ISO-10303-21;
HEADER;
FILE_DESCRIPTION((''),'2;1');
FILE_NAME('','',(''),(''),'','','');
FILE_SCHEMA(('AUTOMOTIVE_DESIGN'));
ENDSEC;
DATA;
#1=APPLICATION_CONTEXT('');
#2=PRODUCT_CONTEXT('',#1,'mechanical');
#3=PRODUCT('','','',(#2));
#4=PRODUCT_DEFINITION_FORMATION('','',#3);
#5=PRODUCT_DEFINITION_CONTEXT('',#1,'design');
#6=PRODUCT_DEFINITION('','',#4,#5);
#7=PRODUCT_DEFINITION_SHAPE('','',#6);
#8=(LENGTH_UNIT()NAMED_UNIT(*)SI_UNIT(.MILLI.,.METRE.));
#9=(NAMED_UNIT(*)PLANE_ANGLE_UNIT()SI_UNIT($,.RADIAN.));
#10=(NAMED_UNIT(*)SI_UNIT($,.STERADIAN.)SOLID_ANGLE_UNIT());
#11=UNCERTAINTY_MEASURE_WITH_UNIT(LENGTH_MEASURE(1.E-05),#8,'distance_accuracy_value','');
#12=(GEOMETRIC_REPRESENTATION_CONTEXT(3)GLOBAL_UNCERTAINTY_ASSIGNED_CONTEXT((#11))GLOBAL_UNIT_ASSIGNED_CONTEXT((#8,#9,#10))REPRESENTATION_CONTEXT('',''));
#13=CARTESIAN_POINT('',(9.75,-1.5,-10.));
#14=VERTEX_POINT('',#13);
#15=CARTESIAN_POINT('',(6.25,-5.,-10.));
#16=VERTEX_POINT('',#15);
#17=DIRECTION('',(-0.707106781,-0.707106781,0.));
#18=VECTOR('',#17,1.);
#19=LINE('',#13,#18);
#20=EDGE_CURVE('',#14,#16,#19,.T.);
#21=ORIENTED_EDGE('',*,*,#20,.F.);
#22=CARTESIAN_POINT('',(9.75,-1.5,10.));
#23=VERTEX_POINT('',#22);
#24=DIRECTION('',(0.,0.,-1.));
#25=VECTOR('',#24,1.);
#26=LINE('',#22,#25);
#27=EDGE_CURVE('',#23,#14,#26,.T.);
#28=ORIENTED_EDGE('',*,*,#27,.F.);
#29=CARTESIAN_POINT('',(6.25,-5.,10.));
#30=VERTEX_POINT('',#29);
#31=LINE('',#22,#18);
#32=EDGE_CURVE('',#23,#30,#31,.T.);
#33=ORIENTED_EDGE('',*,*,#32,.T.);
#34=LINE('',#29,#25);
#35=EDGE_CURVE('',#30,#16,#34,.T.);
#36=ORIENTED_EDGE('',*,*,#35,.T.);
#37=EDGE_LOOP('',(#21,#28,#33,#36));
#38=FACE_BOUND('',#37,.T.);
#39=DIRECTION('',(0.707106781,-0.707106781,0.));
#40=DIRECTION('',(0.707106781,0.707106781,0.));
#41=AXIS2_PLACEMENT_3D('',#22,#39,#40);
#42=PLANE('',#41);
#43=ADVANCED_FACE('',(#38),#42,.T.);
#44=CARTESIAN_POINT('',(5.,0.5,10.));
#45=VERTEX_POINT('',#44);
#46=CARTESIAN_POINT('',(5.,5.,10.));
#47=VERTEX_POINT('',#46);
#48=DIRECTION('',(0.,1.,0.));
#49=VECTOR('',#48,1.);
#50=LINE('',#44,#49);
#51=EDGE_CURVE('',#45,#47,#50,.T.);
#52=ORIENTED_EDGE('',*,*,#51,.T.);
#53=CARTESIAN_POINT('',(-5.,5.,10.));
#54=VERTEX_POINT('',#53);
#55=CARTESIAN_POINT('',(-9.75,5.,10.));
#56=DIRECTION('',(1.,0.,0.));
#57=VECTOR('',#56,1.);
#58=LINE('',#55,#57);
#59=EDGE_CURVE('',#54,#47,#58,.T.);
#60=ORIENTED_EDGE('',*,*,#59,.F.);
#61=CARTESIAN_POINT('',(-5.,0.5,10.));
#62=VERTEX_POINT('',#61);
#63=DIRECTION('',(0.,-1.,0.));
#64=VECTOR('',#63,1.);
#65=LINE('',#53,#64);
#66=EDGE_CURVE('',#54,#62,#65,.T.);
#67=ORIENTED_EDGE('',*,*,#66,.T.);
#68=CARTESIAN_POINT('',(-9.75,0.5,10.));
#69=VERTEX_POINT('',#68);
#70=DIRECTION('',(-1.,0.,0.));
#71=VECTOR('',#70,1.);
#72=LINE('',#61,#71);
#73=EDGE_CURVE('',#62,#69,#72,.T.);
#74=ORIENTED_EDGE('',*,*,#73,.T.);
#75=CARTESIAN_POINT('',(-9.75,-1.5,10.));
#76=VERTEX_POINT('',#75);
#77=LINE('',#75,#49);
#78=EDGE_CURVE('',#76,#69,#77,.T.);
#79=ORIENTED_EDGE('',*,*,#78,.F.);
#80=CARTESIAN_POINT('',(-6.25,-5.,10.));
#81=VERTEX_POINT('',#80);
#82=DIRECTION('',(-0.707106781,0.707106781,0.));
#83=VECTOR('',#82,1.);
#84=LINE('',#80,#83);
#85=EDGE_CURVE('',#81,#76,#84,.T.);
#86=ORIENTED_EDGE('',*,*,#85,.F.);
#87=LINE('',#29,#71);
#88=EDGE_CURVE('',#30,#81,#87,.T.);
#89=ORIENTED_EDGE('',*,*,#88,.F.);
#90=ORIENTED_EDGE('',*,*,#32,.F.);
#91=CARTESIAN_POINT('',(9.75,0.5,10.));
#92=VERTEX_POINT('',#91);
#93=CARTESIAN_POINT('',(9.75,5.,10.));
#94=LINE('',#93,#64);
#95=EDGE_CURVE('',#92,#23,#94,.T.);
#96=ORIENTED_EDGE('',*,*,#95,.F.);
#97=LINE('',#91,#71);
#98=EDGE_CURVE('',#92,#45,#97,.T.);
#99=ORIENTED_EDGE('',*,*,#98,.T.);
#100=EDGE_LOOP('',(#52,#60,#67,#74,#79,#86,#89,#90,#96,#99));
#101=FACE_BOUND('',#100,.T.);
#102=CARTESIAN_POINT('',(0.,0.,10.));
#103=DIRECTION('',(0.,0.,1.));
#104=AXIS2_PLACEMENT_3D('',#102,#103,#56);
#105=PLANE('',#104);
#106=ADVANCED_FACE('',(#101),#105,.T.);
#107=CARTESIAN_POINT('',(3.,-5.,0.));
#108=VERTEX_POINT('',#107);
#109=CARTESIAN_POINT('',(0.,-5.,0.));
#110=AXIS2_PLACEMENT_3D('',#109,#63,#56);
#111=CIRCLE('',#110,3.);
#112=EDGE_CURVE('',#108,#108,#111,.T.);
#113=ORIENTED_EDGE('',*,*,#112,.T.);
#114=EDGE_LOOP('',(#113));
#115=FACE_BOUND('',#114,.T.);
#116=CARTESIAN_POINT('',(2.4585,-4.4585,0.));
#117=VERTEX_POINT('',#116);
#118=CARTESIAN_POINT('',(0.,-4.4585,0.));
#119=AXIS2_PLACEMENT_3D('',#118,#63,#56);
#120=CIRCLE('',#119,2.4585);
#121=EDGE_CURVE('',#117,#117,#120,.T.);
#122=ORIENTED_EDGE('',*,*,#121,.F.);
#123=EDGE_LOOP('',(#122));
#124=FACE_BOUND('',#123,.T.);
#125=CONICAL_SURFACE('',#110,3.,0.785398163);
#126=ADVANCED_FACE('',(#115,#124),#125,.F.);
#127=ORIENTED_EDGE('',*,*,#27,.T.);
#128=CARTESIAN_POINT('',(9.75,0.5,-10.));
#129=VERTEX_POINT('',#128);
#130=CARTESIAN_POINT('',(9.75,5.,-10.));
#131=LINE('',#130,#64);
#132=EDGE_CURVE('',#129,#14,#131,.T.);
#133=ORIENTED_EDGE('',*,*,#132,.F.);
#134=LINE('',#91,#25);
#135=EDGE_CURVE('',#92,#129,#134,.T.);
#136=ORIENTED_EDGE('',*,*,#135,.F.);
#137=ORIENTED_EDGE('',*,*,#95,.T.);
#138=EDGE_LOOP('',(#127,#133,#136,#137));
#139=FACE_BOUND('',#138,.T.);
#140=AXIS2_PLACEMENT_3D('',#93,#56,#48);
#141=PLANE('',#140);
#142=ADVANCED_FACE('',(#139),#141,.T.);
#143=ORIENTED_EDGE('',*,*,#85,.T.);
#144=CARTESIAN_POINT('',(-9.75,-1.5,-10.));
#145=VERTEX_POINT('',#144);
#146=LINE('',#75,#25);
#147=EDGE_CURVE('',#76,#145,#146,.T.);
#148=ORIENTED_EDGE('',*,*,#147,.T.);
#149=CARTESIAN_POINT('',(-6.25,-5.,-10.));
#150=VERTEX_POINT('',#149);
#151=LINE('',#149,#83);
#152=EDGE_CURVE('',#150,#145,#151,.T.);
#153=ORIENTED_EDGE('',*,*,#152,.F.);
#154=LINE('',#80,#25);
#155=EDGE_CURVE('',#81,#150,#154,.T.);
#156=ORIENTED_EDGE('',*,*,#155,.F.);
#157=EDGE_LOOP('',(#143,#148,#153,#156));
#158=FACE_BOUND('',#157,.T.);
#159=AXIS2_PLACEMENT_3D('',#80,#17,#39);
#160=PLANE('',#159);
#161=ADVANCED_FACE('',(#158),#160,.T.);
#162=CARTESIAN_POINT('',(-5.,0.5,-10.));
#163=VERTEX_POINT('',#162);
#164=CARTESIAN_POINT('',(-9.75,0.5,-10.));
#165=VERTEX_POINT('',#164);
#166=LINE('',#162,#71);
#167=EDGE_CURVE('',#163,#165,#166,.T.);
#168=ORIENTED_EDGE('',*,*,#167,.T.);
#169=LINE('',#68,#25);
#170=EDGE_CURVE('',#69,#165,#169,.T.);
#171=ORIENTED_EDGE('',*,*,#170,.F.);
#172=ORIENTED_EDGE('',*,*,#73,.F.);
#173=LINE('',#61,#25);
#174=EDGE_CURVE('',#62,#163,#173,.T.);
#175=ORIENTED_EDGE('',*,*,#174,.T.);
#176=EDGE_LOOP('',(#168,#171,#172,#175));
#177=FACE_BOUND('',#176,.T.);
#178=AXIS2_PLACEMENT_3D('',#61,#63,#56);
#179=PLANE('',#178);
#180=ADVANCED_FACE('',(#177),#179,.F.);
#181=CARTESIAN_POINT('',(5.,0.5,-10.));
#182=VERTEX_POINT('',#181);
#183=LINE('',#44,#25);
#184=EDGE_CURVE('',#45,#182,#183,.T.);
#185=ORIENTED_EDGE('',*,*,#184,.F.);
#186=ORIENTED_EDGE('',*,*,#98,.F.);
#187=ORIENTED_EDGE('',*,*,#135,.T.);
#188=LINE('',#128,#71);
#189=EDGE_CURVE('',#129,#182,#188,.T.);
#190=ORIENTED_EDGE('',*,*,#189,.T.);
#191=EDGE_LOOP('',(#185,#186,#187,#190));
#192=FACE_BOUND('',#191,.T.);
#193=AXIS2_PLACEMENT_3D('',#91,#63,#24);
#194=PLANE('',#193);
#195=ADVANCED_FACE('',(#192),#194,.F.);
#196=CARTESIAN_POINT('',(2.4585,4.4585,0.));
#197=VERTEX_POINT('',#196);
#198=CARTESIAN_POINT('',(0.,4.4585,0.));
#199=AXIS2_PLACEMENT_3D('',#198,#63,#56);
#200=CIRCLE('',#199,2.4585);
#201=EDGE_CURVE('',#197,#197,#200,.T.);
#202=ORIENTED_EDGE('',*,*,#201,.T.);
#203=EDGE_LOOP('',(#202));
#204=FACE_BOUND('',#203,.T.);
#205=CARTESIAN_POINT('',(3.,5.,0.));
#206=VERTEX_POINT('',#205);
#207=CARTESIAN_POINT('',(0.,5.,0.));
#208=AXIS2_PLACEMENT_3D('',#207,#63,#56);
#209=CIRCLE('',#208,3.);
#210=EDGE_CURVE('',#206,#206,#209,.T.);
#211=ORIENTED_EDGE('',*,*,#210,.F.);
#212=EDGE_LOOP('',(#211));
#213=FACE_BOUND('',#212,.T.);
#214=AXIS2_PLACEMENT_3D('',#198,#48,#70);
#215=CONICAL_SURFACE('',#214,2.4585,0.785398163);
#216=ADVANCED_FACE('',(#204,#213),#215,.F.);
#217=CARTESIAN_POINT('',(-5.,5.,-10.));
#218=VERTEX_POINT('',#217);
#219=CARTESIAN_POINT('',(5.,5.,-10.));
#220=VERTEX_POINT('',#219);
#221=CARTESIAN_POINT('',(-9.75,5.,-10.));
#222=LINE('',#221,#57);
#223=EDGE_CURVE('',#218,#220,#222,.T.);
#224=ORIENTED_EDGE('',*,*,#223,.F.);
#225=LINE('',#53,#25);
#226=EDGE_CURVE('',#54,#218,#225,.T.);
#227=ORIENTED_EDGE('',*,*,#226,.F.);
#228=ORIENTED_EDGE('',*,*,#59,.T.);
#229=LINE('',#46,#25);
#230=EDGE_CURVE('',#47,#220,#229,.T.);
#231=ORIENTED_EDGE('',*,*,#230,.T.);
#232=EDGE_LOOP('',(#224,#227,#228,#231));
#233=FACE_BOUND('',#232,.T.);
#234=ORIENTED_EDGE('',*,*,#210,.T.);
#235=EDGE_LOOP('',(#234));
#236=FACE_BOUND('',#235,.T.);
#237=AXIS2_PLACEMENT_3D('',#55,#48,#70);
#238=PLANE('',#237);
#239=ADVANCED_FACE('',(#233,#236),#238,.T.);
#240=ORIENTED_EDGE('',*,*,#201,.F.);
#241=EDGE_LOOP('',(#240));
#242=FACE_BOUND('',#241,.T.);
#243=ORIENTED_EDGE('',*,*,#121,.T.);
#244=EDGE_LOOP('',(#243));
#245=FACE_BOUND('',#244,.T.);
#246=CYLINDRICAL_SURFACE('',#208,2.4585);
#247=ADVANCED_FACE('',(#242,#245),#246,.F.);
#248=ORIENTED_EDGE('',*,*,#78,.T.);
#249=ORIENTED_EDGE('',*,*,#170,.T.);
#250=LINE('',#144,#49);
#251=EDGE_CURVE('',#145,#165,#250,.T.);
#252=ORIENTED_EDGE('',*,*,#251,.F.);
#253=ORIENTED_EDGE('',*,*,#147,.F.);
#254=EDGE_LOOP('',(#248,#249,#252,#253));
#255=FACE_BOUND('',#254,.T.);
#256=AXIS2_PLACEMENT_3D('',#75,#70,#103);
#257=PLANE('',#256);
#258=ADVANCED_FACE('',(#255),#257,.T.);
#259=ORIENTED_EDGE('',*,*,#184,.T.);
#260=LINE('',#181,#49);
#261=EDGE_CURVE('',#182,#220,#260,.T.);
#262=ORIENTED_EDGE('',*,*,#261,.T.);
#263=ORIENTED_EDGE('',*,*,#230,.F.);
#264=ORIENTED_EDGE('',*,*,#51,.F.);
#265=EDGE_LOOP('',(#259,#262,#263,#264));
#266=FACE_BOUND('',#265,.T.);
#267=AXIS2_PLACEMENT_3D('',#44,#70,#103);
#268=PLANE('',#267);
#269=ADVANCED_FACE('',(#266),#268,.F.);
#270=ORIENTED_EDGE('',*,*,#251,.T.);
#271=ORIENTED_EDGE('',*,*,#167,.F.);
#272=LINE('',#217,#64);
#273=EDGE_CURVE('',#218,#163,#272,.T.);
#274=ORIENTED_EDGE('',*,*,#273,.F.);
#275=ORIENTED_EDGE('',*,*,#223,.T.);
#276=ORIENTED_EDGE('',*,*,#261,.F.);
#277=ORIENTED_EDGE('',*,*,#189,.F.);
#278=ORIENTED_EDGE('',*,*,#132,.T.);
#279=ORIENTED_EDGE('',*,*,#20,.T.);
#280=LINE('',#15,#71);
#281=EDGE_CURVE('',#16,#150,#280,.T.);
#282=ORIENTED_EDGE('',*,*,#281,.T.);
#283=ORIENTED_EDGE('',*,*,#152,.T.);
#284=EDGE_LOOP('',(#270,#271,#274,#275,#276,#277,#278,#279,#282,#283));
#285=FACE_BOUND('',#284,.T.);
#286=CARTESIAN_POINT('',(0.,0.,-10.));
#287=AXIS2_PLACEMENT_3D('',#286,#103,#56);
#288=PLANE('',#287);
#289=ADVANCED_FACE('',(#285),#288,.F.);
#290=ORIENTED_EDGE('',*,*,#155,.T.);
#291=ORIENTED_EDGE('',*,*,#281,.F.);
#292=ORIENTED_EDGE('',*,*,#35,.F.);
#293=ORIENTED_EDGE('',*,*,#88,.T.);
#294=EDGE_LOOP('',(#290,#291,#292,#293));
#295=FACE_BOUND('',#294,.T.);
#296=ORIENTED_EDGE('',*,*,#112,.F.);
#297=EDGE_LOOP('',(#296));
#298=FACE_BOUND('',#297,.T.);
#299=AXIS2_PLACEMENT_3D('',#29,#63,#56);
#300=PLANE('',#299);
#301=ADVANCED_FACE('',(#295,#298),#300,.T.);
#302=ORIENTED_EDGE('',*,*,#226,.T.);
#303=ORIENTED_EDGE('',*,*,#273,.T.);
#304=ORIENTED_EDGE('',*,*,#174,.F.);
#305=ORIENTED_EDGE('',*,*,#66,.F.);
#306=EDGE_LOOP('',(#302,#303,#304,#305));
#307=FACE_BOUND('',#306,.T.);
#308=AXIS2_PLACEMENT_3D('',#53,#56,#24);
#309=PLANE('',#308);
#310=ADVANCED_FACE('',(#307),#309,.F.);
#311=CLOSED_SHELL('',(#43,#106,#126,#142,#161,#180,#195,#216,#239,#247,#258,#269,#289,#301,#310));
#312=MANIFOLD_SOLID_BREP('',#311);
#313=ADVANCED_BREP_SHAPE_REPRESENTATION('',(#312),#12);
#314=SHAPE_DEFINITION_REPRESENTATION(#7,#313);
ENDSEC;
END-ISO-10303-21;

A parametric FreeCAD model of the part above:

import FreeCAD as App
import Part
import Sketcher
from FreeCAD import Vector

doc = App.newDocument("Part")
params = doc.addObject("Spreadsheet::Sheet", "Params")
for row, (alias, value) in enumerate([
    ("sketch1_width", "19.5 mm"),
    ("sketch1_width2", "12.5 mm"),
    ("sketch1_height", "6.5 mm"),
    ("pad1_length", "20 mm"),
    ("sketch2_height", "4.5 mm"),
    ("sketch2_width", "4.75 mm"),
    ("sketch3_height", "4.5 mm"),
    ("sketch3_width", "4.75 mm"),
    ("sketch4_width", "3 mm"),
    ("sketch4_height", "10 mm"),
    ("groove_angle", "360 deg"),
], start=1):
    params.set(f"A{row}", alias)
    params.set(f"B{row}", "=" + value)
    params.setAlias(f"B{row}", alias)

body = doc.addObject("PartDesign::Body", "Body")

# Sketch on XY plane
sketch1 = body.newObject("Sketcher::SketchObject", "Sketch")
sketch1.AttachmentSupport = (doc.getObject("XY_Plane"), [""])
sketch1.MapMode = "FlatFace"
sketch1.AttachmentOffset = App.Placement(Vector(0, 0, -10), App.Rotation())
sketch1.addGeometry([
    Part.LineSegment(Vector(-9.8, -1.5, 0), Vector(-9.8, 5, 0)),  # 0
    Part.LineSegment(Vector(-9.8, 5, 0), Vector(9.8, 5, 0)),  # 1
    Part.LineSegment(Vector(9.8, 5, 0), Vector(9.8, -1.5, 0)),  # 2
    Part.LineSegment(Vector(9.8, -1.5, 0), Vector(6.2, -5, 0)),  # 3
    Part.LineSegment(Vector(6.2, -5, 0), Vector(-6.2, -5, 0)),  # 4
    Part.LineSegment(Vector(-6.2, -5, 0), Vector(-9.8, -1.5, 0)),  # 5
], False)
sketch1.addConstraint([
    Sketcher.Constraint("Coincident", 0, 2, 1, 1),
    Sketcher.Constraint("Coincident", 1, 2, 2, 1),
    Sketcher.Constraint("Coincident", 2, 2, 3, 1),
    Sketcher.Constraint("Coincident", 3, 2, 4, 1),
    Sketcher.Constraint("Coincident", 4, 2, 5, 1),
    Sketcher.Constraint("Coincident", 5, 2, 0, 1),
    Sketcher.Constraint("Vertical", 0),
    Sketcher.Constraint("Horizontal", 1),
    Sketcher.Constraint("Vertical", 2),
    Sketcher.Constraint("Horizontal", 4),
    Sketcher.Constraint("Symmetric", 2, 2, 5, 2, -2),
    Sketcher.Constraint("Perpendicular", 3, 5),
    Sketcher.Constraint("Equal", 3, 5),
    Sketcher.Constraint("DistanceX", 1, 1, 1, 2, 19.5),
    Sketcher.Constraint("DistanceX", 4, 2, 4, 1, 12.5),
    Sketcher.Constraint("DistanceY", 0, 1, 0, 2, 6.5),
    Sketcher.Constraint("DistanceY", -1, 1, 0, 2, 5.0),
])
sketch1.setExpression("Constraints[13]", "Params.sketch1_width")
sketch1.setExpression("Constraints[14]", "Params.sketch1_width2")
sketch1.setExpression("Constraints[15]", "Params.sketch1_height")
pad1 = body.newObject("PartDesign::Pad", "Pad")
pad1.Profile = sketch1
pad1.setExpression("Length", "Params.pad1_length")

# Sketch on XY plane
sketch2 = body.newObject("Sketcher::SketchObject", "Sketch001")
sketch2.AttachmentSupport = (doc.getObject("XY_Plane"), [""])
sketch2.MapMode = "FlatFace"
sketch2.AttachmentOffset = App.Placement(Vector(0, 0, -10), App.Rotation())
sketch2.addGeometry([
    Part.LineSegment(Vector(9.8, 5, 0), Vector(9.8, 0.5, 0)),
    Part.LineSegment(Vector(9.8, 0.5, 0), Vector(5, 0.5, 0)),
    Part.LineSegment(Vector(5, 0.5, 0), Vector(5, 5, 0)),
    Part.LineSegment(Vector(5, 5, 0), Vector(9.8, 5, 0)),
], False)
sketch2.addConstraint([
    Sketcher.Constraint("Coincident", 0, 2, 1, 1),
    Sketcher.Constraint("Coincident", 1, 2, 2, 1),
    Sketcher.Constraint("Coincident", 2, 2, 3, 1),
    Sketcher.Constraint("Coincident", 3, 2, 0, 1),
    Sketcher.Constraint("Vertical", 0),
    Sketcher.Constraint("Horizontal", 1),
    Sketcher.Constraint("Vertical", 2),
    Sketcher.Constraint("Horizontal", 3),
    Sketcher.Constraint("DistanceY", 0, 2, 0, 1, 4.5),
    Sketcher.Constraint("DistanceX", -1, 1, 1, 2, 5.0),
    Sketcher.Constraint("DistanceY", -1, 1, 2, 2, 5.0),
    Sketcher.Constraint("DistanceX", 1, 2, 1, 1, 4.75),
])
sketch2.setExpression("Constraints[8]", "Params.sketch2_height")
sketch2.setExpression("Constraints[11]", "Params.sketch2_width")
pocket1 = body.newObject("PartDesign::Pocket", "Pocket")
pocket1.Profile = sketch2
pocket1.Type = "ThroughAll"
pocket1.Reversed = True

# Sketch on XY plane
sketch3 = body.newObject("Sketcher::SketchObject", "Sketch002")
sketch3.AttachmentSupport = (doc.getObject("XY_Plane"), [""])
sketch3.MapMode = "FlatFace"
sketch3.AttachmentOffset = App.Placement(Vector(0, 0, -10), App.Rotation())
sketch3.addGeometry([
    Part.LineSegment(Vector(-5, 5, 0), Vector(-5, 0.5, 0)),
    Part.LineSegment(Vector(-5, 0.5, 0), Vector(-9.8, 0.5, 0)),
    Part.LineSegment(Vector(-9.8, 0.5, 0), Vector(-9.8, 5, 0)),
    Part.LineSegment(Vector(-9.8, 5, 0), Vector(-5, 5, 0)),
], False)
sketch3.addConstraint([
    Sketcher.Constraint("Coincident", 0, 2, 1, 1),
    Sketcher.Constraint("Coincident", 1, 2, 2, 1),
    Sketcher.Constraint("Coincident", 2, 2, 3, 1),
    Sketcher.Constraint("Coincident", 3, 2, 0, 1),
    Sketcher.Constraint("Vertical", 0),
    Sketcher.Constraint("Horizontal", 1),
    Sketcher.Constraint("Vertical", 2),
    Sketcher.Constraint("Horizontal", 3),
    Sketcher.Constraint("DistanceY", 0, 2, 0, 1, 4.5),
    Sketcher.Constraint("DistanceX", 0, 2, -1, 1, 5.0),
    Sketcher.Constraint("DistanceY", -1, 1, 2, 2, 5.0),
    Sketcher.Constraint("DistanceX", 1, 2, 1, 1, 4.75),
])
sketch3.setExpression("Constraints[8]", "Params.sketch3_height")
sketch3.setExpression("Constraints[11]", "Params.sketch3_width")
pocket2 = body.newObject("PartDesign::Pocket", "Pocket001")
pocket2.Profile = sketch3
pocket2.Type = "ThroughAll"
pocket2.Reversed = True

# Sketch on XY plane
sketch4 = body.newObject("Sketcher::SketchObject", "Sketch003")
sketch4.AttachmentSupport = (doc.getObject("XY_Plane"), [""])
sketch4.MapMode = "FlatFace"
sketch4.addGeometry([
    Part.LineSegment(Vector(3, 5, 0), Vector(0, 5, 0)),  # 0
    Part.LineSegment(Vector(0, 5, 0), Vector(0, -5, 0)),  # 1
    Part.LineSegment(Vector(0, -5, 0), Vector(3, -5, 0)),  # 2
    Part.LineSegment(Vector(3, -5, 0), Vector(2.5, -4.5, 0)),  # 3
    Part.LineSegment(Vector(2.5, -4.5, 0), Vector(2.5, 4.5, 0)),  # 4
    Part.LineSegment(Vector(2.5, 4.5, 0), Vector(3, 5, 0)),  # 5
], False)
sketch4.addConstraint([
    Sketcher.Constraint("Coincident", 0, 2, 1, 1),
    Sketcher.Constraint("Coincident", 1, 2, 2, 1),
    Sketcher.Constraint("Coincident", 2, 2, 3, 1),
    Sketcher.Constraint("Coincident", 3, 2, 4, 1),
    Sketcher.Constraint("Coincident", 4, 2, 5, 1),
    Sketcher.Constraint("Coincident", 5, 2, 0, 1),
    Sketcher.Constraint("Horizontal", 0),
    Sketcher.Constraint("Vertical", 1),
    Sketcher.Constraint("Horizontal", 2),
    Sketcher.Constraint("Vertical", 4),
    Sketcher.Constraint("Symmetric", 0, 2, 1, 2, -1, 1),
    Sketcher.Constraint("Perpendicular", 3, 5),
    Sketcher.Constraint("Vertical", 2, 2, 5, 2),
    Sketcher.Constraint("Equal", 3, 5),
    Sketcher.Constraint("DistanceX", 0, 2, 0, 1, 3.0),
    Sketcher.Constraint("DistanceY", 1, 2, 1, 1, 10.0),
    Sketcher.Constraint("DistanceY", 4, 1, 4, 2, 8.917),
])
sketch4.setExpression("Constraints[14]", "Params.sketch4_width")
sketch4.setExpression("Constraints[15]", "Params.sketch4_height")
groove = body.newObject("PartDesign::Groove", "Groove")
groove.Profile = sketch4
groove.ReferenceAxis = (sketch4, ["V_Axis"])
groove.setExpression("Angle", "Params.groove_angle")

doc.recompute()
